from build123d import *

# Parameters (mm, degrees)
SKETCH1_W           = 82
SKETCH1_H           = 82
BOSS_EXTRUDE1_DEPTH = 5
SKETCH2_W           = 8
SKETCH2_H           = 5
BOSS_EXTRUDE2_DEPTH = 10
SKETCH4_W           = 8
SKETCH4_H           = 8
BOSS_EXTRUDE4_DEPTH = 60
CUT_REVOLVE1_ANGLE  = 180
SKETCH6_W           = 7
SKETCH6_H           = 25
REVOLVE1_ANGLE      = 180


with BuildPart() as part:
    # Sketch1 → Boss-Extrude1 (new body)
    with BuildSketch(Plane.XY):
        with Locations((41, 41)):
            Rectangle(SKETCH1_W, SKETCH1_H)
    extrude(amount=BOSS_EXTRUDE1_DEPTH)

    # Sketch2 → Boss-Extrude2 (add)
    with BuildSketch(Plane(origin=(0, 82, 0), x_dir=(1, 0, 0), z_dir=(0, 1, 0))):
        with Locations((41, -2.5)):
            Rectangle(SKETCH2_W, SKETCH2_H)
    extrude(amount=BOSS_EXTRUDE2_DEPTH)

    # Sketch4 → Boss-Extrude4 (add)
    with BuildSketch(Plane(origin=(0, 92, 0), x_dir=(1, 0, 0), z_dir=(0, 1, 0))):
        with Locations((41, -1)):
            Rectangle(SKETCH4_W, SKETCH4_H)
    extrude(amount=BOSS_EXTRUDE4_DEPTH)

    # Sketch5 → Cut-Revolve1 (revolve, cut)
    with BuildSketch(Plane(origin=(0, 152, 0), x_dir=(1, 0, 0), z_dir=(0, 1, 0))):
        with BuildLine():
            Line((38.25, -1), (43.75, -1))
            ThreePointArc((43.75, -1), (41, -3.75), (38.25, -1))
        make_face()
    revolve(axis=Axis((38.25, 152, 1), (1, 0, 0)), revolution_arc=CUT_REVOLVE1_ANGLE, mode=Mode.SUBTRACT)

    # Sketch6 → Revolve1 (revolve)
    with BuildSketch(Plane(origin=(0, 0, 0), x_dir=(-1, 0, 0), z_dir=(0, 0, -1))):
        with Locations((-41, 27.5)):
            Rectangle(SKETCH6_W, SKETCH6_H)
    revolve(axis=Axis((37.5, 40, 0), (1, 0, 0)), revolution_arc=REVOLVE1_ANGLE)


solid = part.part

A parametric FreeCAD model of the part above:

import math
import FreeCAD as App
import Part
import Sketcher
Q = App.Units.Quantity


def add_polygon(sketch, points):
    """Adds a closed chain of lines whose ends are joined by coincident constraints."""
    first, n = sketch.GeometryCount, len(points)
    for a, b in zip(points, points[1:] + points[:1]):
        sketch.addGeometry(Part.LineSegment(App.Vector(*a, 0), App.Vector(*b, 0)), False)
    for i in range(n):
        sketch.addConstraint(Sketcher.Constraint("Coincident", first + i, 2, first + (i + 1) % n, 1))

doc = App.newDocument("Part")
body = doc.addObject("PartDesign::Body", "Body")

sketch1 = body.newObject("Sketcher::SketchObject", "Sketch")
sketch1.AttachmentSupport = (doc.getObject("XY_Plane"), [""])
sketch1.MapMode = "FlatFace"
add_polygon(sketch1, [(0, 82), (0, 0), (82, 0), (82, 82)])
sketch1.addConstraint(Sketcher.Constraint("Vertical", 0))
sketch1.addConstraint(Sketcher.Constraint("Horizontal", 1))
sketch1.addConstraint(Sketcher.Constraint("Vertical", 2))
sketch1.addConstraint(Sketcher.Constraint("Horizontal", 3))
sketch1.addConstraint(Sketcher.Constraint("Coincident", 0, 2, -1, 1))
sketch1.addConstraint(Sketcher.Constraint("Equal", 3, 0))
sketch1.addConstraint(Sketcher.Constraint("DistanceX", 1, 1, 1, 2, Q("82 mm")))
pad1 = body.newObject("PartDesign::Pad", "Pad")
pad1.Profile = sketch1
pad1.Length = 5

sketch2 = body.newObject("Sketcher::SketchObject", "Sketch001")
sketch2.AttachmentSupport = (doc.getObject("XZ_Plane"), [""])
sketch2.MapMode = "FlatFace"
sketch2.AttachmentOffset = App.Placement(App.Vector(0, 0, -82), App.Rotation())
add_polygon(sketch2, [(37, 0), (37, 5), (45, 5), (45, 0)])
sketch2.addConstraint(Sketcher.Constraint("Vertical", 0))
sketch2.addConstraint(Sketcher.Constraint("Horizontal", 1))
sketch2.addConstraint(Sketcher.Constraint("Vertical", 2))
sketch2.addConstraint(Sketcher.Constraint("Horizontal", 3))
sketch2.addConstraint(Sketcher.Constraint("PointOnObject", 2, 2, -1))
sketch2.addConstraint(Sketcher.Constraint("DistanceX", 1, 1, 1, 2, Q("8 mm")))
sketch2.addConstraint(Sketcher.Constraint("DistanceY", 0, 1, 0, 2, Q("5 mm")))
sketch2.addConstraint(Sketcher.Constraint("DistanceX", -1, 1, 0, 2, Q("37 mm")))
pad2 = body.newObject("PartDesign::Pad", "Pad001")
pad2.Profile = sketch2
pad2.Length = 10
pad2.Reversed = True

sketch3 = body.newObject("Sketcher::SketchObject", "Sketch002")
sketch3.AttachmentSupport = (doc.getObject("XZ_Plane"), [""])
sketch3.MapMode = "FlatFace"
sketch3.AttachmentOffset = App.Placement(App.Vector(0, 0, -92), App.Rotation())
add_polygon(sketch3, [(37, -3), (37, 5), (45, 5), (45, -3)])
sketch3.addConstraint(Sketcher.Constraint("Vertical", 0))
sketch3.addConstraint(Sketcher.Constraint("Horizontal", 1))
sketch3.addConstraint(Sketcher.Constraint("Vertical", 2))
sketch3.addConstraint(Sketcher.Constraint("Horizontal", 3))
sketch3.addConstraint(Sketcher.Constraint("Equal", 3, 0))
sketch3.addConstraint(Sketcher.Constraint("DistanceX", 1, 1, 1, 2, Q("8 mm")))
sketch3.addConstraint(Sketcher.Constraint("DistanceX", -1, 1, 0, 2, Q("37 mm")))
sketch3.addConstraint(Sketcher.Constraint("DistanceY", -1, 1, 0, 2, Q("5 mm")))
pad3 = body.newObject("PartDesign::Pad", "Pad002")
pad3.Profile = sketch3
pad3.Length = 60
pad3.Reversed = True

sketch4 = body.newObject("Sketcher::SketchObject", "Sketch003")
sketch4.AttachmentSupport = (doc.getObject("XZ_Plane"), [""])
sketch4.MapMode = "FlatFace"
sketch4.AttachmentOffset = App.Placement(App.Vector(0, 0, -152), App.Rotation())
sketch4.addGeometry(Part.LineSegment(App.Vector(43.8, 1, 0), App.Vector(38.2, 1, 0)), False)
sketch4.addGeometry(Part.ArcOfCircle(Part.Circle(App.Vector(41, 1, 0), App.Vector(0, 0, 1), 2.8), math.radians(0), math.radians(180)), False)
sketch4.addGeometry(Part.LineSegment(App.Vector(38.2, 1, 0), App.Vector(43.8, 1, 0)), True)
sketch4.addConstraint(Sketcher.Constraint("Coincident", 0, 1, 1, 1))
sketch4.addConstraint(Sketcher.Constraint("Coincident", 1, 2, 0, 2))
sketch4.addConstraint(Sketcher.Constraint("Horizontal", 0))
sketch4.addConstraint(Sketcher.Constraint("Horizontal", 2))
sketch4.addConstraint(Sketcher.Constraint("Coincident", 2, 1, 1, 2))
sketch4.addConstraint(Sketcher.Constraint("Horizontal", 1, 3, 0, 1))
sketch4.addConstraint(Sketcher.Constraint("Equal", 0, 2))
sketch4.addConstraint(Sketcher.Constraint("Radius", 1, Q("2.75 mm")))
sketch4.addConstraint(Sketcher.Constraint("DistanceX", -1, 1, 1, 3, Q("41 mm")))
sketch4.addConstraint(Sketcher.Constraint("DistanceY", -1, 1, 1, 3, Q("1 mm")))
groove = body.newObject("PartDesign::Groove", "Groove")
groove.Profile = sketch4
groove.ReferenceAxis = (sketch4, ["Axis0"])
groove.Angle = 180

sketch5 = body.newObject("Sketcher::SketchObject", "Sketch004")
sketch5.AttachmentSupport = (doc.getObject("XY_Plane"), [""])
sketch5.MapMode = "FlatFace"
add_polygon(sketch5, [(44, 40), (44, 15), (38, 15), (38, 40)])
sketch5.addGeometry(Part.LineSegment(App.Vector(38, 40, 0), App.Vector(44, 40, 0)), True)
sketch5.addConstraint(Sketcher.Constraint("Vertical", 0))
sketch5.addConstraint(Sketcher.Constraint("Horizontal", 1))
sketch5.addConstraint(Sketcher.Constraint("Vertical", 2))
sketch5.addConstraint(Sketcher.Constraint("Horizontal", 3))
sketch5.addConstraint(Sketcher.Constraint("Horizontal", 4))
sketch5.addConstraint(Sketcher.Constraint("Coincident", 4, 1, 2, 2))
sketch5.addConstraint(Sketcher.Constraint("Vertical", 0, 2, 4, 2))
sketch5.addConstraint(Sketcher.Constraint("DistanceX", 1, 2, 1, 1, Q("7 mm")))
sketch5.addConstraint(Sketcher.Constraint("DistanceY", 0, 2, 0, 1, Q("25 mm")))
sketch5.addConstraint(Sketcher.Constraint("DistanceY", -1, 1, 0, 2, Q("15 mm")))
sketch5.addConstraint(Sketcher.Constraint("DistanceX", -1, 1, 0, 2, Q("44.5 mm")))
revolution = body.newObject("PartDesign::Revolution", "Revolution")
revolution.Profile = sketch5
revolution.ReferenceAxis = (sketch5, ["Axis0"])
revolution.Angle = 180

doc.recompute()
